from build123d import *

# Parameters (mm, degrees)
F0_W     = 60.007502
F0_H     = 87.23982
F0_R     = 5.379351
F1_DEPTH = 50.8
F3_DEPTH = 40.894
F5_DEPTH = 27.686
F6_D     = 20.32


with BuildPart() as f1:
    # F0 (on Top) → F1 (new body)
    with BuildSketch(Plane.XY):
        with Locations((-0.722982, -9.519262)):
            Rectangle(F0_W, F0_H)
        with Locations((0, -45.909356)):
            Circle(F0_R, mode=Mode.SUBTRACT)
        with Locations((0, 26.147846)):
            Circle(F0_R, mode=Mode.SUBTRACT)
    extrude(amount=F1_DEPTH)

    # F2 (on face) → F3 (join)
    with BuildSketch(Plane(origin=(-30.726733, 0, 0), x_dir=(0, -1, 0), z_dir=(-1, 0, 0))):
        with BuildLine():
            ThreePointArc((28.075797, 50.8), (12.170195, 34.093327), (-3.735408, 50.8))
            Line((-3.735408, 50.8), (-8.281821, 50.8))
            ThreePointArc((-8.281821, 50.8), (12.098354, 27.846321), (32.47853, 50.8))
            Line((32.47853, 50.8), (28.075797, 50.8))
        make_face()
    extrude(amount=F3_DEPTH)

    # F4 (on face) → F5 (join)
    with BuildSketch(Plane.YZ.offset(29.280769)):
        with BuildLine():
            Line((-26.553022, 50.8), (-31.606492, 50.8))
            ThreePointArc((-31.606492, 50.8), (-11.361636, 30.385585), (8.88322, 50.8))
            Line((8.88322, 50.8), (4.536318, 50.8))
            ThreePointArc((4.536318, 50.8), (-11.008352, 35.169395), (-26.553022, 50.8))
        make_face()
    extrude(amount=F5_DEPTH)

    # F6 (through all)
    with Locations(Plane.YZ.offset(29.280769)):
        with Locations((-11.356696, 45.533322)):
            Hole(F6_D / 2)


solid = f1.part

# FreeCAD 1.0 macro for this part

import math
import FreeCAD as App
import Part
import Sketcher

V = App.Vector
Q = App.Units.Quantity

doc = App.newDocument("Part")
body = doc.addObject("PartDesign::Body", "Body")

# Sketch on XY plane
sketch1 = doc.addObject("Sketcher::SketchObject", "Sketch")
body.addObject(sketch1)
sketch1.AttachmentSupport = (doc.XY_Plane, [""])
sketch1.MapMode = "FlatFace"
sketch1.addGeometry(Part.LineSegment(V(-31, 34, 0), V(-31, -53, 0)), False)
sketch1.addGeometry(Part.LineSegment(V(-31, -53, 0), V(29, -53, 0)), False)
sketch1.addGeometry(Part.LineSegment(V(29, -53, 0), V(29, 34, 0)), False)
sketch1.addGeometry(Part.LineSegment(V(29, 34, 0), V(-31, 34, 0)), False)
sketch1.addGeometry(Part.Circle(V(0, -46, 0), V(0, 0, 1), 5), False)
sketch1.addGeometry(Part.Circle(V(0, 26, 0), V(0, 0, 1), 5), False)
sketch1.addConstraint(Sketcher.Constraint("Coincident", 0, 2, 1, 1))
sketch1.addConstraint(Sketcher.Constraint("Coincident", 1, 2, 2, 1))
sketch1.addConstraint(Sketcher.Constraint("Coincident", 2, 2, 3, 1))
sketch1.addConstraint(Sketcher.Constraint("Coincident", 3, 2, 0, 1))
sketch1.addConstraint(Sketcher.Constraint("Vertical", 0))
sketch1.addConstraint(Sketcher.Constraint("Horizontal", 1))
sketch1.addConstraint(Sketcher.Constraint("Vertical", 2))
sketch1.addConstraint(Sketcher.Constraint("Horizontal", 3))
sketch1.addConstraint(Sketcher.Constraint("Equal", 4, 5))
sketch1.addConstraint(Sketcher.Constraint("PointOnObject", 4, 3, -2))
sketch1.addConstraint(Sketcher.Constraint("PointOnObject", 5, 3, -2))
sketch1.addConstraint(Sketcher.Constraint("DistanceY", 4, 3, 2, 2, Q("3.1500002 in")))
sketch1.addConstraint(Sketcher.Constraint("DistanceX", 1, 1, 1, 2, Q("2.3625001 in")))
sketch1.addConstraint(Sketcher.Constraint("Diameter", 4, 10.758702))
sketch1.addConstraint(Sketcher.Constraint("DistanceY", 0, 2, 0, 1, 87.23982))
sketch1.addConstraint(Sketcher.Constraint("DistanceY", 5, 3, 2, 2, 7.952802))
sketch1.addConstraint(Sketcher.Constraint("DistanceX", -1, 1, 1, 2, 29.280769))
sketch1.addConstraint(Sketcher.Constraint("DistanceY", 4, 3, -1, 1, 45.909356))
pad1 = doc.addObject("PartDesign::Pad", "Pad")
body.addObject(pad1)
pad1.Profile = sketch1
pad1.Length = Q("2 in")

# Sketch on YZ plane
sketch2 = doc.addObject("Sketcher::SketchObject", "Sketch001")
body.addObject(sketch2)
sketch2.AttachmentSupport = (doc.YZ_Plane, [""])
sketch2.MapMode = "FlatFace"
sketch2.AttachmentOffset = App.Placement(V(0, 0, -30.726733), App.Rotation())
sketch2.addGeometry(Part.ArcOfCircle(Part.Circle(V(-12.2, 50, 0), V(0, 0, 1), 15.9), math.radians(177), math.radians(363)), False)
sketch2.addGeometry(Part.LineSegment(V(3.7, 50.8, 0), V(8.3, 50.8, 0)), False)
sketch2.addGeometry(Part.ArcOfCircle(Part.Circle(V(-12.1, 48.4, 0), V(0, 0, 1), 20.5), math.radians(173), math.radians(367)), False)
sketch2.addGeometry(Part.LineSegment(V(-32.5, 50.8, 0), V(-28.1, 50.8, 0)), False)
sketch2.addConstraint(Sketcher.Constraint("Coincident", 0, 2, 1, 1))
sketch2.addConstraint(Sketcher.Constraint("Coincident", 1, 2, 2, 2))
sketch2.addConstraint(Sketcher.Constraint("Coincident", 2, 1, 3, 1))
sketch2.addConstraint(Sketcher.Constraint("Coincident", 3, 2, 0, 1))
sketch2.addConstraint(Sketcher.Constraint("Horizontal", 1))
sketch2.addConstraint(Sketcher.Constraint("Horizontal", 3))
sketch2.addConstraint(Sketcher.Constraint("Horizontal", 1, 2, 2, 1))
sketch2.addConstraint(Sketcher.Constraint("DistanceY", -1, 1, 0, 2, Q("2 in")))
sketch2.addConstraint(Sketcher.Constraint("Radius", 0, 15.924808))
sketch2.addConstraint(Sketcher.Constraint("Radius", 2, 20.524443))
sketch2.addConstraint(Sketcher.Constraint("DistanceX", 1, 1, 1, 2, 4.546413))
sketch2.addConstraint(Sketcher.Constraint("DistanceX", 3, 1, 3, 2, 4.402733))
sketch2.addConstraint(Sketcher.Constraint("DistanceX", -1, 1, 1, 2, 8.281821))
sketch2.addConstraint(Sketcher.Constraint("DistanceX", 2, 1, -1, 1, 32.47853))
pad2 = doc.addObject("PartDesign::Pad", "Pad001")
body.addObject(pad2)
pad2.Profile = sketch2
pad2.Length = Q("1.61 in")
pad2.Reversed = True

# Sketch on YZ plane
sketch3 = doc.addObject("Sketcher::SketchObject", "Sketch002")
body.addObject(sketch3)
sketch3.AttachmentSupport = (doc.YZ_Plane, [""])
sketch3.MapMode = "FlatFace"
sketch3.AttachmentOffset = App.Placement(V(0, 0, 29.280769), App.Rotation())
sketch3.addGeometry(Part.LineSegment(V(-26.6, 50.8, 0), V(-31.6, 50.8, 0)), False)
sketch3.addGeometry(Part.ArcOfCircle(Part.Circle(V(-11.4, 50.6, 0), V(0, 0, 1), 20.2), math.radians(180), math.radians(360)), False)
sketch3.addGeometry(Part.LineSegment(V(8.9, 50.8, 0), V(4.5, 50.8, 0)), False)
sketch3.addGeometry(Part.ArcOfCircle(Part.Circle(V(-11, 50.7, 0), V(0, 0, 1), 15.5), math.radians(180), math.radians(360)), False)
sketch3.addConstraint(Sketcher.Constraint("Coincident", 0, 2, 1, 1))
sketch3.addConstraint(Sketcher.Constraint("Coincident", 1, 2, 2, 1))
sketch3.addConstraint(Sketcher.Constraint("Coincident", 2, 2, 3, 2))
sketch3.addConstraint(Sketcher.Constraint("Coincident", 3, 1, 0, 1))
sketch3.addConstraint(Sketcher.Constraint("Horizontal", 0))
sketch3.addConstraint(Sketcher.Constraint("Horizontal", 2))
sketch3.addConstraint(Sketcher.Constraint("Horizontal", 0, 2, 1, 2))
sketch3.addConstraint(Sketcher.Constraint("DistanceY", -1, 1, 0, 2, Q("2 in")))
sketch3.addConstraint(Sketcher.Constraint("Radius", 1, 20.24556))
sketch3.addConstraint(Sketcher.Constraint("Radius", 3, 15.544906))
sketch3.addConstraint(Sketcher.Constraint("DistanceX", 0, 2, 0, 1, 5.05347))
sketch3.addConstraint(Sketcher.Constraint("DistanceY", -1, 1, 3, 3, 50.714301))
sketch3.addConstraint(Sketcher.Constraint("DistanceX", 2, 2, 2, 1, 4.346902))
sketch3.addConstraint(Sketcher.Constraint("DistanceX", 0, 2, -1, 1, 31.606492))
pad3 = doc.addObject("PartDesign::Pad", "Pad002")
body.addObject(pad3)
pad3.Profile = sketch3
pad3.Length = Q("1.09 in")

# Sketch on YZ plane
sketch4 = doc.addObject("Sketcher::SketchObject", "Sketch003")
body.addObject(sketch4)
sketch4.AttachmentSupport = (doc.YZ_Plane, [""])
sketch4.MapMode = "FlatFace"
sketch4.AttachmentOffset = App.Placement(V(0, 0, 29.280769), App.Rotation())
sketch4.addGeometry(Part.Circle(V(-11, 46, 0), V(0, 0, 1), 10), False)
sketch4.addConstraint(Sketcher.Constraint("Diameter", 0, Q("0.8 in")))
sketch4.addConstraint(Sketcher.Constraint("DistanceY", -1, 1, 0, 3, 45.533322))
sketch4.addConstraint(Sketcher.Constraint("DistanceX", 0, 3, -1, 1, 11.356696))
doc.recompute()
hole = doc.addObject("PartDesign::Hole", "Hole")
body.addObject(hole)
hole.Profile = sketch4
hole.ThreadType = "None"
hole.Diameter = Q("0.8 in")
hole.DepthType = "ThroughAll"

doc.recompute()
